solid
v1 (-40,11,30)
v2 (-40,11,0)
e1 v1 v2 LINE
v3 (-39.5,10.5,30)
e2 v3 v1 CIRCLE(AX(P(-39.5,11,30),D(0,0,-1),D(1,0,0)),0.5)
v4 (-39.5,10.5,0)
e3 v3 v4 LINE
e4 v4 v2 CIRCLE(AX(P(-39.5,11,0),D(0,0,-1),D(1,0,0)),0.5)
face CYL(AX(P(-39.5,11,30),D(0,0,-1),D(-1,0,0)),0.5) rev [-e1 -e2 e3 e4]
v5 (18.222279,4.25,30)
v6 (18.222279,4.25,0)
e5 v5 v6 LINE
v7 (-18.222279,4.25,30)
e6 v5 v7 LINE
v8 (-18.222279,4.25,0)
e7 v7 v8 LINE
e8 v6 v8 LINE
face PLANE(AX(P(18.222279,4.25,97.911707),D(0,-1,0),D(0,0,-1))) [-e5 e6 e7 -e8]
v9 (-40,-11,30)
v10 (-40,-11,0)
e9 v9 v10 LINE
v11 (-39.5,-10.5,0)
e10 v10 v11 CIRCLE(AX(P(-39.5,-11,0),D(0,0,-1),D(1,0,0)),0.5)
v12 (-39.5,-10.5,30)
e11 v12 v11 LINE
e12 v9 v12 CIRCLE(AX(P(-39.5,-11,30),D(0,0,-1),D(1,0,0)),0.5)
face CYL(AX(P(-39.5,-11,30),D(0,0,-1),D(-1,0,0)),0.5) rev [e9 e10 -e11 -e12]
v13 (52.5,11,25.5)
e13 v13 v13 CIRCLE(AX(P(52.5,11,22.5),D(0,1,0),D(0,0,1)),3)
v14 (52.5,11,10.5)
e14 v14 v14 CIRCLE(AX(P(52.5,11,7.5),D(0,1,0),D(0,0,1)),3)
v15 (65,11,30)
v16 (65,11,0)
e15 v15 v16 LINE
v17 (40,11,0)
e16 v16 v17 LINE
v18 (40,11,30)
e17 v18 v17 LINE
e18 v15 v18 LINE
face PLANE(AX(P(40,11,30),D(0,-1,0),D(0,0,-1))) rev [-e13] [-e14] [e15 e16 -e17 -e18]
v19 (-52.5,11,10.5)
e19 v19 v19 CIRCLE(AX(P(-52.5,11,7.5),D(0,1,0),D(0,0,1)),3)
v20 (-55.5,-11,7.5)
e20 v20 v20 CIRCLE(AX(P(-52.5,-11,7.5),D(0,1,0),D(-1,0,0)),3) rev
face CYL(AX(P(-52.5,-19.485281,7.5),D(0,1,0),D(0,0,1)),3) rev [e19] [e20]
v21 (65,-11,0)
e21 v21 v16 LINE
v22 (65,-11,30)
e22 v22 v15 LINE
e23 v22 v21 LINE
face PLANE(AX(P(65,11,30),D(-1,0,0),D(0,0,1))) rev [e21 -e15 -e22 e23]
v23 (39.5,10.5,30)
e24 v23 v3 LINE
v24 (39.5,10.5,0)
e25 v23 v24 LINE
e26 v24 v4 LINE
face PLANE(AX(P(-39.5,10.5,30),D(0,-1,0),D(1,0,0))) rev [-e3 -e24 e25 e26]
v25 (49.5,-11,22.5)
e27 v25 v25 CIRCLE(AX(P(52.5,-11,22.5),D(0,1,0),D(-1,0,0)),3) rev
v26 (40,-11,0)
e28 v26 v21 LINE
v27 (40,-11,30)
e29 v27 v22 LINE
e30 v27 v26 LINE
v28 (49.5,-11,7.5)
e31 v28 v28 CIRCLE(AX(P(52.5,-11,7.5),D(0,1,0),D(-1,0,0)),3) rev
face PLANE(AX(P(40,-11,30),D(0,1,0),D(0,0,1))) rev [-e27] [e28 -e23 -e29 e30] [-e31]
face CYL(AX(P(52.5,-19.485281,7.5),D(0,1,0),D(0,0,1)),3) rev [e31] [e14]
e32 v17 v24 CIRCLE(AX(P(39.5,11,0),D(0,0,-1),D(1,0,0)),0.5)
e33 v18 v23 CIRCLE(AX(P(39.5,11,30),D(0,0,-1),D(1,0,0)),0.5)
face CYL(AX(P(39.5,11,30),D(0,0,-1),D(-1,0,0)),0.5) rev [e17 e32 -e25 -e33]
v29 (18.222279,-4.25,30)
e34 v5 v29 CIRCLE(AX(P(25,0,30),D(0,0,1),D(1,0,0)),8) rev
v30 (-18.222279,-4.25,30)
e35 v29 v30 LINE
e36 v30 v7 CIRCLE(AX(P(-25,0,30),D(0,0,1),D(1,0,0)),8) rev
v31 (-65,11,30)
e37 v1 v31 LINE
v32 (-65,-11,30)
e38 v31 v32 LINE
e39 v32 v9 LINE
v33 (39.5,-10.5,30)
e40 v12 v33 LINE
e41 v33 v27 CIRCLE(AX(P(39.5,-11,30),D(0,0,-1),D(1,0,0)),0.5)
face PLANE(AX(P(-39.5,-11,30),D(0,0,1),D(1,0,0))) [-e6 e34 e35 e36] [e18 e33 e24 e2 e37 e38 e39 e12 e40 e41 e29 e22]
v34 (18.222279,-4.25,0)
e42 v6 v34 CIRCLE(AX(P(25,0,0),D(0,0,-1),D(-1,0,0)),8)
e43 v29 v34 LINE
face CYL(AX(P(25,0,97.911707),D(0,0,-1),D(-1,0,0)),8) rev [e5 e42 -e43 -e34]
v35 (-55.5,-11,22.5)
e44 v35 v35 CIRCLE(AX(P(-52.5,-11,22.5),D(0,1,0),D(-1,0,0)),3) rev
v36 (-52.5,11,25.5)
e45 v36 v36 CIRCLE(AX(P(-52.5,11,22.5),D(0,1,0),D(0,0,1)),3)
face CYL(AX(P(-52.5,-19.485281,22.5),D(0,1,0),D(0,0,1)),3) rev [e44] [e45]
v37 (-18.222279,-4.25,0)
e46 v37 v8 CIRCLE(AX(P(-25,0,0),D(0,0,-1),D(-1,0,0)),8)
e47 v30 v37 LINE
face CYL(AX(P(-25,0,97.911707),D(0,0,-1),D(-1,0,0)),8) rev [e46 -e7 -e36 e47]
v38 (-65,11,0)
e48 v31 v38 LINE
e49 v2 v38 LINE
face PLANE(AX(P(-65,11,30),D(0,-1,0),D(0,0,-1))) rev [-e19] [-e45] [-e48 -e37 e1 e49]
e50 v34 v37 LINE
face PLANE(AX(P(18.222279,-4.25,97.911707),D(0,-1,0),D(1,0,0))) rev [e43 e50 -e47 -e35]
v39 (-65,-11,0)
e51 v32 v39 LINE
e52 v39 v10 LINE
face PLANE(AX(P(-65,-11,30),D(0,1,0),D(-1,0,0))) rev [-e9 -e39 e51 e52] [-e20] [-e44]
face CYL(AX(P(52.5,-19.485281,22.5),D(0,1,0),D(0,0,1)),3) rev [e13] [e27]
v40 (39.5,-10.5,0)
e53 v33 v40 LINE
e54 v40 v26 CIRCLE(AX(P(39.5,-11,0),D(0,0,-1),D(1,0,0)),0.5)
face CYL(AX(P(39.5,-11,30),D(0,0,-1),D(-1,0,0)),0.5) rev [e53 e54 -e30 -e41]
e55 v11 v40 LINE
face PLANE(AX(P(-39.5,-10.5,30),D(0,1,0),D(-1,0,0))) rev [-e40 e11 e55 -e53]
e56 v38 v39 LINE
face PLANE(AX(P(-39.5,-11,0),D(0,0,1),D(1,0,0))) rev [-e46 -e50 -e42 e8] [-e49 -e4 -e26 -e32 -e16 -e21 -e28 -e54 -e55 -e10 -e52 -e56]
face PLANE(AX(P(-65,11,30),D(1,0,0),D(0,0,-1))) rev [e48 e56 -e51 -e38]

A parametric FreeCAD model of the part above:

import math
import FreeCAD as App
import Part
import Sketcher
Q = App.Units.Quantity

doc = App.newDocument("Part")
body = doc.addObject("PartDesign::Body", "Body")

sketch1 = body.newObject("Sketcher::SketchObject", "Sketch")
sketch1.AttachmentSupport = (doc.getObject("XY_Plane"), [""])
sketch1.MapMode = "FlatFace"
sketch1.addGeometry([
    Part.LineSegment(App.Vector(65, 11, 0), App.Vector(40, 11, 0)),
    Part.ArcOfCircle(Part.Circle(App.Vector(39.5, 11, 0), App.Vector(0, 0, 1), 0.5), math.radians(-90), math.radians(0)),
    Part.LineSegment(App.Vector(39.5, 10.5, 0), App.Vector(-39.5, 10.5, 0)),
    Part.ArcOfCircle(Part.Circle(App.Vector(-39.5, 11, 0), App.Vector(0, 0, 1), 0.5), math.radians(180), math.radians(270)),
    Part.LineSegment(App.Vector(-40, 11, 0), App.Vector(-65, 11, 0)),
    Part.LineSegment(App.Vector(-65, 11, 0), App.Vector(-65, -11, 0)),
    Part.LineSegment(App.Vector(-65, -11, 0), App.Vector(-40, -11, 0)),
    Part.ArcOfCircle(Part.Circle(App.Vector(-39.5, -11, 0), App.Vector(0, 0, 1), 0.5), math.radians(90), math.radians(180)),
    Part.LineSegment(App.Vector(-39.5, -10.5, 0), App.Vector(39.5, -10.5, 0)),
    Part.ArcOfCircle(Part.Circle(App.Vector(39.5, -11, 0), App.Vector(0, 0, 1), 0.5), math.radians(0), math.radians(90)),
    Part.LineSegment(App.Vector(40, -11, 0), App.Vector(65, -11, 0)),
    Part.LineSegment(App.Vector(65, -11, 0), App.Vector(65, 11, 0)),
], False)
sketch1.addConstraint([
    Sketcher.Constraint("Coincident", 0, 2, 1, 2),
    Sketcher.Constraint("Tangent", 1, 1, 2, 1),
    Sketcher.Constraint("Tangent", 2, 2, 3, 2),
    Sketcher.Constraint("Coincident", 3, 1, 4, 1),
    Sketcher.Constraint("Coincident", 4, 2, 5, 1),
    Sketcher.Constraint("Coincident", 5, 2, 6, 1),
    Sketcher.Constraint("Coincident", 6, 2, 7, 2),
    Sketcher.Constraint("Tangent", 7, 1, 8, 1),
    Sketcher.Constraint("Tangent", 8, 2, 9, 2),
    Sketcher.Constraint("Coincident", 9, 1, 10, 1),
    Sketcher.Constraint("Coincident", 10, 2, 11, 1),
    Sketcher.Constraint("Coincident", 11, 2, 0, 1),
    Sketcher.Constraint("Horizontal", 0),
    Sketcher.Constraint("Horizontal", 2),
    Sketcher.Constraint("Horizontal", 4),
    Sketcher.Constraint("Vertical", 5),
    Sketcher.Constraint("Horizontal", 6),
    Sketcher.Constraint("Horizontal", 8),
    Sketcher.Constraint("Horizontal", 10),
    Sketcher.Constraint("Vertical", 11),
    Sketcher.Constraint("Equal", 1, 3),
    Sketcher.Constraint("Equal", 3, 7),
    Sketcher.Constraint("Equal", 7, 9),
    Sketcher.Constraint("Symmetric", 1, 3, 7, 3, -1, 1),
    Sketcher.Constraint("Symmetric", 3, 1, 9, 1, -1, 1),
    Sketcher.Constraint("Symmetric", 5, 2, 11, 2, -1, 1),
    Sketcher.Constraint("Symmetric", 0, 2, 3, 1, -2),
    Sketcher.Constraint("Horizontal", 3, 3, 0, 2),
    Sketcher.Constraint("Radius", 1, Q("0.5 mm")),
    Sketcher.Constraint("DistanceX", 0, 2, 0, 1, Q("25 mm")),
    Sketcher.Constraint("DistanceX", 2, 2, 2, 1, Q("79 mm")),
    Sketcher.Constraint("DistanceY", 5, 2, 5, 1, Q("22 mm")),
])
pad1 = body.newObject("PartDesign::Pad", "Pad")
pad1.Profile = sketch1
pad1.Length = 30

sketch2 = body.newObject("Sketcher::SketchObject", "Sketch001")
sketch2.AttachmentSupport = (doc.getObject("XZ_Plane"), [""])
sketch2.MapMode = "FlatFace"
sketch2.AttachmentOffset = App.Placement(App.Vector(0, 0, -11), App.Rotation())
sketch2.addGeometry([
    Part.Circle(App.Vector(52.5, 7.5, 0), App.Vector(0, 0, 1), 3),
    Part.Circle(App.Vector(52.5, 22.5, 0), App.Vector(0, 0, 1), 3),
    Part.Circle(App.Vector(-52.5, 7.5, 0), App.Vector(0, 0, 1), 3),
    Part.Circle(App.Vector(-52.5, 22.5, 0), App.Vector(0, 0, 1), 3),
], False)
sketch2.addConstraint([
    Sketcher.Constraint("Equal", 0, 1),
    Sketcher.Constraint("Equal", 1, 2),
    Sketcher.Constraint("Equal", 2, 3),
    Sketcher.Constraint("Symmetric", 0, 3, 2, 3, -2),
    Sketcher.Constraint("Symmetric", 1, 3, 3, 3, -2),
    Sketcher.Constraint("Vertical", 0, 3, 1, 3),
    Sketcher.Constraint("Diameter", 0, Q("6 mm")),
    Sketcher.Constraint("DistanceY", 0, 3, 1, 3, Q("15 mm")),
    Sketcher.Constraint("DistanceX", 2, 3, 0, 3, Q("105 mm")),
    Sketcher.Constraint("DistanceY", -1, 1, 0, 3, Q("7.5 mm")),
])
pocket1 = body.newObject("PartDesign::Pocket", "Pocket")
pocket1.Profile = sketch2
pocket1.Length = 22
pocket1.Reversed = True

sketch3 = body.newObject("Sketcher::SketchObject", "Sketch002")
sketch3.AttachmentSupport = (doc.getObject("XY_Plane"), [""])
sketch3.MapMode = "FlatFace"
sketch3.addGeometry([
    Part.LineSegment(App.Vector(-18.222279, 4.25, 0), App.Vector(18.222279, 4.25, 0)),
    Part.ArcOfCircle(Part.Circle(App.Vector(25, 0, 0), App.Vector(0, 0, 1), 8), math.radians(-147.910049), math.radians(147.910049)),
    Part.LineSegment(App.Vector(18.222279, -4.25, 0), App.Vector(-18.222279, -4.25, 0)),
    Part.ArcOfCircle(Part.Circle(App.Vector(-25, 0, 0), App.Vector(0, 0, 1), 8), math.radians(32.089951), math.radians(327.910049)),
], False)
sketch3.addConstraint([
    Sketcher.Constraint("Coincident", 0, 2, 1, 2),
    Sketcher.Constraint("Coincident", 1, 1, 2, 1),
    Sketcher.Constraint("Coincident", 2, 2, 3, 2),
    Sketcher.Constraint("Coincident", 3, 1, 0, 1),
    Sketcher.Constraint("Horizontal", 0),
    Sketcher.Constraint("Horizontal", 2),
    Sketcher.Constraint("Equal", 1, 3),
    Sketcher.Constraint("Symmetric", 1, 3, 3, 3, -1, 1),
    Sketcher.Constraint("Symmetric", 0, 2, 1, 1, -1),
    Sketcher.Constraint("Radius", 1, Q("8 mm")),
    Sketcher.Constraint("DistanceX", -1, 1, 1, 3, Q("25 mm")),
    Sketcher.Constraint("DistanceY", 1, 1, 0, 2, Q("8.5 mm")),
])
pocket2 = body.newObject("PartDesign::Pocket", "Pocket001")
pocket2.Profile = sketch3
pocket2.Length = 30
pocket2.Reversed = True

doc.recompute()
